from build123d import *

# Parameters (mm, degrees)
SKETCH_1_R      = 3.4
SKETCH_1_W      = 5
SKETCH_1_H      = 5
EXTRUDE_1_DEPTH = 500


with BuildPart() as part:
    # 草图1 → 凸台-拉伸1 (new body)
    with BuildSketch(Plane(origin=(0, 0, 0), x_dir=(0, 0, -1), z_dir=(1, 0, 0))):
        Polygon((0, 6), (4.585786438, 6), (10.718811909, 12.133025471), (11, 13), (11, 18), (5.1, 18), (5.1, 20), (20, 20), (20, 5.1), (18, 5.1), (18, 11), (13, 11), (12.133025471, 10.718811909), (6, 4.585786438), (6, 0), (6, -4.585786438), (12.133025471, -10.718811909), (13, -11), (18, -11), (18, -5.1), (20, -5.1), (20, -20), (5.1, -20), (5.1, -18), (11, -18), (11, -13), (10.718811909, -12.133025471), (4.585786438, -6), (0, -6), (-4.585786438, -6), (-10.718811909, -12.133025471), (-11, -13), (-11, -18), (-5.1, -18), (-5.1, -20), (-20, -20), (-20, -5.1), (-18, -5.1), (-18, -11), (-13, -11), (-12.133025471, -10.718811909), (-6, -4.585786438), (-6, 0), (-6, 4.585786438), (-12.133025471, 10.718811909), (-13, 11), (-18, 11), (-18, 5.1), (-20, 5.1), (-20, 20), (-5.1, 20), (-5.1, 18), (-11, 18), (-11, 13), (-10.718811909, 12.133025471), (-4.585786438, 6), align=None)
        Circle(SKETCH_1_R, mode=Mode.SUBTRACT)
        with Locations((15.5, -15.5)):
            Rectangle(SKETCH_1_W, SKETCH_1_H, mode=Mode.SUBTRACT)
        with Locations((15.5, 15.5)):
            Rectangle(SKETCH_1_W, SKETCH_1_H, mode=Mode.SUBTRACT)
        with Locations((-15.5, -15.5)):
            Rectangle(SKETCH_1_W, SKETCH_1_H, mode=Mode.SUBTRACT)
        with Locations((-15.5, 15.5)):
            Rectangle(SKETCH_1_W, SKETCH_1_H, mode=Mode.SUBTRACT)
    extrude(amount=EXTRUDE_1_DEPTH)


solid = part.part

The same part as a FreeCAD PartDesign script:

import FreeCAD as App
import Part
import Sketcher
from FreeCAD import Vector
Q = App.Units.Quantity

doc = App.newDocument("Part")
body = doc.addObject("PartDesign::Body", "Body")

sketch1 = body.newObject("Sketcher::SketchObject", "Sketch")
sketch1.AttachmentSupport = (doc.getObject("YZ_Plane"), [""])
sketch1.MapMode = "FlatFace"
sketch1.addGeometry([
    Part.LineSegment(Vector(6, -4.6, 0), Vector(6, 4.6, 0)),
    Part.LineSegment(Vector(6, 4.6, 0), Vector(12.1, 10.7, 0)),
    Part.LineSegment(Vector(12.1, 10.7, 0), Vector(13, 11, 0)),
    Part.LineSegment(Vector(13, 11, 0), Vector(18, 11, 0)),
    Part.LineSegment(Vector(18, 11, 0), Vector(18, 5.1, 0)),
    Part.LineSegment(Vector(18, 5.1, 0), Vector(20, 5.1, 0)),
    Part.LineSegment(Vector(20, 5.1, 0), Vector(20, 20, 0)),
    Part.LineSegment(Vector(20, 20, 0), Vector(5.1, 20, 0)),
    Part.LineSegment(Vector(5.1, 20, 0), Vector(5.1, 18, 0)),
    Part.LineSegment(Vector(5.1, 18, 0), Vector(11, 18, 0)),
    Part.LineSegment(Vector(11, 18, 0), Vector(11, 13, 0)),
    Part.LineSegment(Vector(11, 13, 0), Vector(10.7, 12.1, 0)),
    Part.LineSegment(Vector(10.7, 12.1, 0), Vector(4.6, 6, 0)),
    Part.LineSegment(Vector(4.6, 6, 0), Vector(-4.6, 6, 0)),
    Part.LineSegment(Vector(-4.6, 6, 0), Vector(-10.7, 12.1, 0)),
    Part.LineSegment(Vector(-10.7, 12.1, 0), Vector(-11, 13, 0)),
    Part.LineSegment(Vector(-11, 13, 0), Vector(-11, 18, 0)),
    Part.LineSegment(Vector(-11, 18, 0), Vector(-5.1, 18, 0)),
    Part.LineSegment(Vector(-5.1, 18, 0), Vector(-5.1, 20, 0)),
    Part.LineSegment(Vector(-5.1, 20, 0), Vector(-20, 20, 0)),
    Part.LineSegment(Vector(-20, 20, 0), Vector(-20, 5.1, 0)),
    Part.LineSegment(Vector(-20, 5.1, 0), Vector(-18, 5.1, 0)),
    Part.LineSegment(Vector(-18, 5.1, 0), Vector(-18, 11, 0)),
    Part.LineSegment(Vector(-18, 11, 0), Vector(-13, 11, 0)),
    Part.LineSegment(Vector(-13, 11, 0), Vector(-12.1, 10.7, 0)),
    Part.LineSegment(Vector(-12.1, 10.7, 0), Vector(-6, 4.6, 0)),
    Part.LineSegment(Vector(-6, 4.6, 0), Vector(-6, -4.6, 0)),
    Part.LineSegment(Vector(-6, -4.6, 0), Vector(-12.1, -10.7, 0)),
    Part.LineSegment(Vector(-12.1, -10.7, 0), Vector(-13, -11, 0)),
    Part.LineSegment(Vector(-13, -11, 0), Vector(-18, -11, 0)),
    Part.LineSegment(Vector(-18, -11, 0), Vector(-18, -5.1, 0)),
    Part.LineSegment(Vector(-18, -5.1, 0), Vector(-20, -5.1, 0)),
    Part.LineSegment(Vector(-20, -5.1, 0), Vector(-20, -20, 0)),
    Part.LineSegment(Vector(-20, -20, 0), Vector(-5.1, -20, 0)),
    Part.LineSegment(Vector(-5.1, -20, 0), Vector(-5.1, -18, 0)),
    Part.LineSegment(Vector(-5.1, -18, 0), Vector(-11, -18, 0)),
    Part.LineSegment(Vector(-11, -18, 0), Vector(-11, -13, 0)),
    Part.LineSegment(Vector(-11, -13, 0), Vector(-10.7, -12.1, 0)),
    Part.LineSegment(Vector(-10.7, -12.1, 0), Vector(-4.6, -6, 0)),
    Part.LineSegment(Vector(-4.6, -6, 0), Vector(4.6, -6, 0)),
    Part.LineSegment(Vector(4.6, -6, 0), Vector(10.7, -12.1, 0)),
    Part.LineSegment(Vector(10.7, -12.1, 0), Vector(11, -13, 0)),
    Part.LineSegment(Vector(11, -13, 0), Vector(11, -18, 0)),
    Part.LineSegment(Vector(11, -18, 0), Vector(5.1, -18, 0)),
    Part.LineSegment(Vector(5.1, -18, 0), Vector(5.1, -20, 0)),
    Part.LineSegment(Vector(5.1, -20, 0), Vector(20, -20, 0)),
    Part.LineSegment(Vector(20, -20, 0), Vector(20, -5.1, 0)),
    Part.LineSegment(Vector(20, -5.1, 0), Vector(18, -5.1, 0)),
    Part.LineSegment(Vector(18, -5.1, 0), Vector(18, -11, 0)),
    Part.LineSegment(Vector(18, -11, 0), Vector(13, -11, 0)),
    Part.LineSegment(Vector(13, -11, 0), Vector(12.1, -10.7, 0)),
    Part.LineSegment(Vector(12.1, -10.7, 0), Vector(6, -4.6, 0)),
    Part.LineSegment(Vector(-18, -13, 0), Vector(-13, -13, 0)),
    Part.LineSegment(Vector(-13, -13, 0), Vector(-13, -18, 0)),
    Part.LineSegment(Vector(-13, -18, 0), Vector(-18, -18, 0)),
    Part.LineSegment(Vector(-18, -18, 0), Vector(-18, -13, 0)),
    Part.LineSegment(Vector(-18, 18, 0), Vector(-13, 18, 0)),
    Part.LineSegment(Vector(-13, 18, 0), Vector(-13, 13, 0)),
    Part.LineSegment(Vector(-13, 13, 0), Vector(-18, 13, 0)),
    Part.LineSegment(Vector(-18, 13, 0), Vector(-18, 18, 0)),
    Part.LineSegment(Vector(13, -13, 0), Vector(18, -13, 0)),
    Part.LineSegment(Vector(18, -13, 0), Vector(18, -18, 0)),
    Part.LineSegment(Vector(18, -18, 0), Vector(13, -18, 0)),
    Part.LineSegment(Vector(13, -18, 0), Vector(13, -13, 0)),
    Part.Circle(Vector(0, 0, 0), Vector(0, 0, 1), 3.4),
    Part.LineSegment(Vector(13, 18, 0), Vector(18, 18, 0)),
    Part.LineSegment(Vector(18, 18, 0), Vector(18, 13, 0)),
    Part.LineSegment(Vector(18, 13, 0), Vector(13, 13, 0)),
    Part.LineSegment(Vector(13, 13, 0), Vector(13, 18, 0)),
], False)
sketch1.addConstraint([
    Sketcher.Constraint("Coincident", 0, 2, 1, 1),
    Sketcher.Constraint("Coincident", 1, 2, 2, 1),
    Sketcher.Constraint("Coincident", 2, 2, 3, 1),
    Sketcher.Constraint("Coincident", 3, 2, 4, 1),
    Sketcher.Constraint("Coincident", 4, 2, 5, 1),
    Sketcher.Constraint("Coincident", 5, 2, 6, 1),
    Sketcher.Constraint("Coincident", 6, 2, 7, 1),
    Sketcher.Constraint("Coincident", 7, 2, 8, 1),
    Sketcher.Constraint("Coincident", 8, 2, 9, 1),
    Sketcher.Constraint("Coincident", 9, 2, 10, 1),
    Sketcher.Constraint("Coincident", 10, 2, 11, 1),
    Sketcher.Constraint("Coincident", 11, 2, 12, 1),
    Sketcher.Constraint("Coincident", 12, 2, 13, 1),
    Sketcher.Constraint("Coincident", 13, 2, 14, 1),
    Sketcher.Constraint("Coincident", 14, 2, 15, 1),
    Sketcher.Constraint("Coincident", 15, 2, 16, 1),
    Sketcher.Constraint("Coincident", 16, 2, 17, 1),
    Sketcher.Constraint("Coincident", 17, 2, 18, 1),
    Sketcher.Constraint("Coincident", 18, 2, 19, 1),
    Sketcher.Constraint("Coincident", 19, 2, 20, 1),
    Sketcher.Constraint("Coincident", 20, 2, 21, 1),
    Sketcher.Constraint("Coincident", 21, 2, 22, 1),
    Sketcher.Constraint("Coincident", 22, 2, 23, 1),
    Sketcher.Constraint("Coincident", 23, 2, 24, 1),
    Sketcher.Constraint("Coincident", 24, 2, 25, 1),
    Sketcher.Constraint("Coincident", 25, 2, 26, 1),
    Sketcher.Constraint("Coincident", 26, 2, 27, 1),
    Sketcher.Constraint("Coincident", 27, 2, 28, 1),
    Sketcher.Constraint("Coincident", 28, 2, 29, 1),
    Sketcher.Constraint("Coincident", 29, 2, 30, 1),
    Sketcher.Constraint("Coincident", 30, 2, 31, 1),
    Sketcher.Constraint("Coincident", 31, 2, 32, 1),
    Sketcher.Constraint("Coincident", 32, 2, 33, 1),
    Sketcher.Constraint("Coincident", 33, 2, 34, 1),
    Sketcher.Constraint("Coincident", 34, 2, 35, 1),
    Sketcher.Constraint("Coincident", 35, 2, 36, 1),
    Sketcher.Constraint("Coincident", 36, 2, 37, 1),
    Sketcher.Constraint("Coincident", 37, 2, 38, 1),
    Sketcher.Constraint("Coincident", 38, 2, 39, 1),
    Sketcher.Constraint("Coincident", 39, 2, 40, 1),
    Sketcher.Constraint("Coincident", 40, 2, 41, 1),
    Sketcher.Constraint("Coincident", 41, 2, 42, 1),
    Sketcher.Constraint("Coincident", 42, 2, 43, 1),
    Sketcher.Constraint("Coincident", 43, 2, 44, 1),
    Sketcher.Constraint("Coincident", 44, 2, 45, 1),
    Sketcher.Constraint("Coincident", 45, 2, 46, 1),
    Sketcher.Constraint("Coincident", 46, 2, 47, 1),
    Sketcher.Constraint("Coincident", 47, 2, 48, 1),
    Sketcher.Constraint("Coincident", 48, 2, 49, 1),
    Sketcher.Constraint("Coincident", 49, 2, 50, 1),
    Sketcher.Constraint("Coincident", 50, 2, 51, 1),
    Sketcher.Constraint("Coincident", 51, 2, 0, 1),
    Sketcher.Constraint("Coincident", 52, 2, 53, 1),
    Sketcher.Constraint("Coincident", 53, 2, 54, 1),
    Sketcher.Constraint("Coincident", 54, 2, 55, 1),
    Sketcher.Constraint("Coincident", 55, 2, 52, 1),
    Sketcher.Constraint("Coincident", 56, 2, 57, 1),
    Sketcher.Constraint("Coincident", 57, 2, 58, 1),
    Sketcher.Constraint("Coincident", 58, 2, 59, 1),
    Sketcher.Constraint("Coincident", 59, 2, 56, 1),
    Sketcher.Constraint("Coincident", 60, 2, 61, 1),
    Sketcher.Constraint("Coincident", 61, 2, 62, 1),
    Sketcher.Constraint("Coincident", 62, 2, 63, 1),
    Sketcher.Constraint("Coincident", 63, 2, 60, 1),
    Sketcher.Constraint("Coincident", 65, 2, 66, 1),
    Sketcher.Constraint("Coincident", 66, 2, 67, 1),
    Sketcher.Constraint("Coincident", 67, 2, 68, 1),
    Sketcher.Constraint("Coincident", 68, 2, 65, 1),
    Sketcher.Constraint("Vertical", 0),
    Sketcher.Constraint("Horizontal", 3),
    Sketcher.Constraint("Vertical", 4),
    Sketcher.Constraint("Horizontal", 5),
    Sketcher.Constraint("Vertical", 6),
    Sketcher.Constraint("Horizontal", 7),
    Sketcher.Constraint("Vertical", 8),
    Sketcher.Constraint("Horizontal", 9),
    Sketcher.Constraint("Vertical", 10),
    Sketcher.Constraint("Horizontal", 13),
    Sketcher.Constraint("Vertical", 16),
    Sketcher.Constraint("Horizontal", 17),
    Sketcher.Constraint("Vertical", 18),
    Sketcher.Constraint("Horizontal", 19),
    Sketcher.Constraint("Vertical", 20),
    Sketcher.Constraint("Horizontal", 21),
    Sketcher.Constraint("Vertical", 22),
    Sketcher.Constraint("Horizontal", 23),
    Sketcher.Constraint("Vertical", 26),
    Sketcher.Constraint("Horizontal", 29),
    Sketcher.Constraint("Vertical", 30),
    Sketcher.Constraint("Horizontal", 31),
    Sketcher.Constraint("Vertical", 32),
    Sketcher.Constraint("Horizontal", 33),
    Sketcher.Constraint("Vertical", 34),
    Sketcher.Constraint("Horizontal", 35),
    Sketcher.Constraint("Vertical", 36),
    Sketcher.Constraint("Horizontal", 39),
    Sketcher.Constraint("Vertical", 42),
    Sketcher.Constraint("Horizontal", 43),
    Sketcher.Constraint("Vertical", 44),
    Sketcher.Constraint("Horizontal", 45),
    Sketcher.Constraint("Vertical", 46),
    Sketcher.Constraint("Horizontal", 47),
    Sketcher.Constraint("Vertical", 48),
    Sketcher.Constraint("Horizontal", 49),
    Sketcher.Constraint("Horizontal", 52),
    Sketcher.Constraint("Vertical", 53),
    Sketcher.Constraint("Horizontal", 54),
    Sketcher.Constraint("Vertical", 55),
    Sketcher.Constraint("Horizontal", 56),
    Sketcher.Constraint("Vertical", 57),
    Sketcher.Constraint("Horizontal", 58),
    Sketcher.Constraint("Vertical", 59),
    Sketcher.Constraint("Horizontal", 60),
    Sketcher.Constraint("Vertical", 61),
    Sketcher.Constraint("Horizontal", 62),
    Sketcher.Constraint("Vertical", 63),
    Sketcher.Constraint("Horizontal", 65),
    Sketcher.Constraint("Vertical", 66),
    Sketcher.Constraint("Horizontal", 67),
    Sketcher.Constraint("Vertical", 68),
    Sketcher.Constraint("Coincident", 64, 3, -1, 1),
    Sketcher.Constraint("Symmetric", 0, 2, 26, 2, -1, 1),
    Sketcher.Constraint("Symmetric", 1, 2, 27, 2, -1, 1),
    Sketcher.Constraint("Symmetric", 2, 2, 28, 2, -1, 1),
    Sketcher.Constraint("Symmetric", 4, 2, 30, 2, -1, 1),
    Sketcher.Constraint("Symmetric", 6, 2, 32, 2, -1, 1),
    Sketcher.Constraint("Symmetric", 8, 2, 34, 2, -1, 1),
    Sketcher.Constraint("Symmetric", 10, 2, 36, 2, -1, 1),
    Sketcher.Constraint("Symmetric", 11, 2, 37, 2, -1, 1),
    Sketcher.Constraint("Symmetric", 12, 2, 38, 2, -1, 1),
    Sketcher.Constraint("Symmetric", 14, 2, 40, 2, -1, 1),
    Sketcher.Constraint("Symmetric", 15, 2, 41, 2, -1, 1),
    Sketcher.Constraint("Symmetric", 17, 2, 43, 2, -1, 1),
    Sketcher.Constraint("Symmetric", 19, 2, 45, 2, -1, 1),
    Sketcher.Constraint("Symmetric", 21, 2, 47, 2, -1, 1),
    Sketcher.Constraint("Symmetric", 23, 2, 49, 2, -1, 1),
    Sketcher.Constraint("Symmetric", 24, 2, 50, 2, -1, 1),
    Sketcher.Constraint("Symmetric", 58, 2, 60, 2, -1, 1),
    Sketcher.Constraint("Symmetric", 56, 2, 62, 2, -1, 1),
    Sketcher.Constraint("Symmetric", 54, 2, 65, 2, -1, 1),
    Sketcher.Constraint("Symmetric", 52, 2, 67, 2, -1, 1),
    Sketcher.Constraint("Symmetric", 11, 2, 14, 2, -2),
    Sketcher.Constraint("Symmetric", 10, 2, 15, 2, -2),
    Sketcher.Constraint("Symmetric", 8, 2, 17, 2, -2),
    Sketcher.Constraint("Symmetric", 6, 2, 19, 2, -2),
    Sketcher.Constraint("Symmetric", 4, 2, 21, 2, -2),
    Sketcher.Constraint("Symmetric", 2, 2, 23, 2, -2),
    Sketcher.Constraint("Symmetric", 1, 2, 24, 2, -2),
    Sketcher.Constraint("Symmetric", 55, 2, 60, 2, -2),
    Sketcher.Constraint("Symmetric", 53, 2, 62, 2, -2),
    Sketcher.Constraint("Parallel", 1, 12),
    Sketcher.Constraint("Perpendicular", 12, 14),
    Sketcher.Constraint("Perpendicular", 2, 15),
    Sketcher.Constraint("Parallel", 14, 25),
    Sketcher.Constraint("Perpendicular", 38, 40),
    Sketcher.Constraint("Parallel", 40, 51),
    Sketcher.Constraint("Horizontal", 0, 2, 25, 2),
    Sketcher.Constraint("Horizontal", 41, 2, 52, 2),
    Sketcher.Constraint("Horizontal", 43, 2, 53, 2),
    Sketcher.Constraint("Vertical", 28, 2, 52, 2),
    Sketcher.Constraint("Vertical", 30, 2, 54, 2),
    Sketcher.Constraint("Equal", 39, 0),
    Sketcher.Constraint("Equal", 43, 4),
    Sketcher.Constraint("Equal", 45, 6),
    Sketcher.Constraint("Equal", 47, 8),
    Sketcher.Constraint("Equal", 67, 10),
    Sketcher.Constraint("Equal", 2, 11),
    Sketcher.Constraint("Equal", 1, 12),
    Sketcher.Constraint("Diameter", 64, Q("6.8 mm")),
    Sketcher.Constraint("DistanceX", 3, 1, 3, 2, Q("5 mm")),
    Sketcher.Constraint("DistanceX", 5, 1, 5, 2, Q("2 mm")),
    Sketcher.Constraint("DistanceX", 7, 2, 7, 1, Q("14.9 mm")),
    Sketcher.Constraint("DistanceX", 9, 1, 9, 2, Q("5.9 mm")),
    Sketcher.Constraint("DistanceX", -1, 1, 0, 2, Q("6 mm")),
    Sketcher.Constraint("DistanceX", -1, 1, 2, 2, Q("13 mm")),
    Sketcher.Constraint("DistanceX", 13, 2, 13, 1, Q("9.171573 mm")),
    Sketcher.Constraint("DistanceY", -1, 1, 1, 2, Q("10.718812 mm")),
])
pad1 = body.newObject("PartDesign::Pad", "Pad")
pad1.Profile = sketch1
pad1.Length = 500

doc.recompute()
